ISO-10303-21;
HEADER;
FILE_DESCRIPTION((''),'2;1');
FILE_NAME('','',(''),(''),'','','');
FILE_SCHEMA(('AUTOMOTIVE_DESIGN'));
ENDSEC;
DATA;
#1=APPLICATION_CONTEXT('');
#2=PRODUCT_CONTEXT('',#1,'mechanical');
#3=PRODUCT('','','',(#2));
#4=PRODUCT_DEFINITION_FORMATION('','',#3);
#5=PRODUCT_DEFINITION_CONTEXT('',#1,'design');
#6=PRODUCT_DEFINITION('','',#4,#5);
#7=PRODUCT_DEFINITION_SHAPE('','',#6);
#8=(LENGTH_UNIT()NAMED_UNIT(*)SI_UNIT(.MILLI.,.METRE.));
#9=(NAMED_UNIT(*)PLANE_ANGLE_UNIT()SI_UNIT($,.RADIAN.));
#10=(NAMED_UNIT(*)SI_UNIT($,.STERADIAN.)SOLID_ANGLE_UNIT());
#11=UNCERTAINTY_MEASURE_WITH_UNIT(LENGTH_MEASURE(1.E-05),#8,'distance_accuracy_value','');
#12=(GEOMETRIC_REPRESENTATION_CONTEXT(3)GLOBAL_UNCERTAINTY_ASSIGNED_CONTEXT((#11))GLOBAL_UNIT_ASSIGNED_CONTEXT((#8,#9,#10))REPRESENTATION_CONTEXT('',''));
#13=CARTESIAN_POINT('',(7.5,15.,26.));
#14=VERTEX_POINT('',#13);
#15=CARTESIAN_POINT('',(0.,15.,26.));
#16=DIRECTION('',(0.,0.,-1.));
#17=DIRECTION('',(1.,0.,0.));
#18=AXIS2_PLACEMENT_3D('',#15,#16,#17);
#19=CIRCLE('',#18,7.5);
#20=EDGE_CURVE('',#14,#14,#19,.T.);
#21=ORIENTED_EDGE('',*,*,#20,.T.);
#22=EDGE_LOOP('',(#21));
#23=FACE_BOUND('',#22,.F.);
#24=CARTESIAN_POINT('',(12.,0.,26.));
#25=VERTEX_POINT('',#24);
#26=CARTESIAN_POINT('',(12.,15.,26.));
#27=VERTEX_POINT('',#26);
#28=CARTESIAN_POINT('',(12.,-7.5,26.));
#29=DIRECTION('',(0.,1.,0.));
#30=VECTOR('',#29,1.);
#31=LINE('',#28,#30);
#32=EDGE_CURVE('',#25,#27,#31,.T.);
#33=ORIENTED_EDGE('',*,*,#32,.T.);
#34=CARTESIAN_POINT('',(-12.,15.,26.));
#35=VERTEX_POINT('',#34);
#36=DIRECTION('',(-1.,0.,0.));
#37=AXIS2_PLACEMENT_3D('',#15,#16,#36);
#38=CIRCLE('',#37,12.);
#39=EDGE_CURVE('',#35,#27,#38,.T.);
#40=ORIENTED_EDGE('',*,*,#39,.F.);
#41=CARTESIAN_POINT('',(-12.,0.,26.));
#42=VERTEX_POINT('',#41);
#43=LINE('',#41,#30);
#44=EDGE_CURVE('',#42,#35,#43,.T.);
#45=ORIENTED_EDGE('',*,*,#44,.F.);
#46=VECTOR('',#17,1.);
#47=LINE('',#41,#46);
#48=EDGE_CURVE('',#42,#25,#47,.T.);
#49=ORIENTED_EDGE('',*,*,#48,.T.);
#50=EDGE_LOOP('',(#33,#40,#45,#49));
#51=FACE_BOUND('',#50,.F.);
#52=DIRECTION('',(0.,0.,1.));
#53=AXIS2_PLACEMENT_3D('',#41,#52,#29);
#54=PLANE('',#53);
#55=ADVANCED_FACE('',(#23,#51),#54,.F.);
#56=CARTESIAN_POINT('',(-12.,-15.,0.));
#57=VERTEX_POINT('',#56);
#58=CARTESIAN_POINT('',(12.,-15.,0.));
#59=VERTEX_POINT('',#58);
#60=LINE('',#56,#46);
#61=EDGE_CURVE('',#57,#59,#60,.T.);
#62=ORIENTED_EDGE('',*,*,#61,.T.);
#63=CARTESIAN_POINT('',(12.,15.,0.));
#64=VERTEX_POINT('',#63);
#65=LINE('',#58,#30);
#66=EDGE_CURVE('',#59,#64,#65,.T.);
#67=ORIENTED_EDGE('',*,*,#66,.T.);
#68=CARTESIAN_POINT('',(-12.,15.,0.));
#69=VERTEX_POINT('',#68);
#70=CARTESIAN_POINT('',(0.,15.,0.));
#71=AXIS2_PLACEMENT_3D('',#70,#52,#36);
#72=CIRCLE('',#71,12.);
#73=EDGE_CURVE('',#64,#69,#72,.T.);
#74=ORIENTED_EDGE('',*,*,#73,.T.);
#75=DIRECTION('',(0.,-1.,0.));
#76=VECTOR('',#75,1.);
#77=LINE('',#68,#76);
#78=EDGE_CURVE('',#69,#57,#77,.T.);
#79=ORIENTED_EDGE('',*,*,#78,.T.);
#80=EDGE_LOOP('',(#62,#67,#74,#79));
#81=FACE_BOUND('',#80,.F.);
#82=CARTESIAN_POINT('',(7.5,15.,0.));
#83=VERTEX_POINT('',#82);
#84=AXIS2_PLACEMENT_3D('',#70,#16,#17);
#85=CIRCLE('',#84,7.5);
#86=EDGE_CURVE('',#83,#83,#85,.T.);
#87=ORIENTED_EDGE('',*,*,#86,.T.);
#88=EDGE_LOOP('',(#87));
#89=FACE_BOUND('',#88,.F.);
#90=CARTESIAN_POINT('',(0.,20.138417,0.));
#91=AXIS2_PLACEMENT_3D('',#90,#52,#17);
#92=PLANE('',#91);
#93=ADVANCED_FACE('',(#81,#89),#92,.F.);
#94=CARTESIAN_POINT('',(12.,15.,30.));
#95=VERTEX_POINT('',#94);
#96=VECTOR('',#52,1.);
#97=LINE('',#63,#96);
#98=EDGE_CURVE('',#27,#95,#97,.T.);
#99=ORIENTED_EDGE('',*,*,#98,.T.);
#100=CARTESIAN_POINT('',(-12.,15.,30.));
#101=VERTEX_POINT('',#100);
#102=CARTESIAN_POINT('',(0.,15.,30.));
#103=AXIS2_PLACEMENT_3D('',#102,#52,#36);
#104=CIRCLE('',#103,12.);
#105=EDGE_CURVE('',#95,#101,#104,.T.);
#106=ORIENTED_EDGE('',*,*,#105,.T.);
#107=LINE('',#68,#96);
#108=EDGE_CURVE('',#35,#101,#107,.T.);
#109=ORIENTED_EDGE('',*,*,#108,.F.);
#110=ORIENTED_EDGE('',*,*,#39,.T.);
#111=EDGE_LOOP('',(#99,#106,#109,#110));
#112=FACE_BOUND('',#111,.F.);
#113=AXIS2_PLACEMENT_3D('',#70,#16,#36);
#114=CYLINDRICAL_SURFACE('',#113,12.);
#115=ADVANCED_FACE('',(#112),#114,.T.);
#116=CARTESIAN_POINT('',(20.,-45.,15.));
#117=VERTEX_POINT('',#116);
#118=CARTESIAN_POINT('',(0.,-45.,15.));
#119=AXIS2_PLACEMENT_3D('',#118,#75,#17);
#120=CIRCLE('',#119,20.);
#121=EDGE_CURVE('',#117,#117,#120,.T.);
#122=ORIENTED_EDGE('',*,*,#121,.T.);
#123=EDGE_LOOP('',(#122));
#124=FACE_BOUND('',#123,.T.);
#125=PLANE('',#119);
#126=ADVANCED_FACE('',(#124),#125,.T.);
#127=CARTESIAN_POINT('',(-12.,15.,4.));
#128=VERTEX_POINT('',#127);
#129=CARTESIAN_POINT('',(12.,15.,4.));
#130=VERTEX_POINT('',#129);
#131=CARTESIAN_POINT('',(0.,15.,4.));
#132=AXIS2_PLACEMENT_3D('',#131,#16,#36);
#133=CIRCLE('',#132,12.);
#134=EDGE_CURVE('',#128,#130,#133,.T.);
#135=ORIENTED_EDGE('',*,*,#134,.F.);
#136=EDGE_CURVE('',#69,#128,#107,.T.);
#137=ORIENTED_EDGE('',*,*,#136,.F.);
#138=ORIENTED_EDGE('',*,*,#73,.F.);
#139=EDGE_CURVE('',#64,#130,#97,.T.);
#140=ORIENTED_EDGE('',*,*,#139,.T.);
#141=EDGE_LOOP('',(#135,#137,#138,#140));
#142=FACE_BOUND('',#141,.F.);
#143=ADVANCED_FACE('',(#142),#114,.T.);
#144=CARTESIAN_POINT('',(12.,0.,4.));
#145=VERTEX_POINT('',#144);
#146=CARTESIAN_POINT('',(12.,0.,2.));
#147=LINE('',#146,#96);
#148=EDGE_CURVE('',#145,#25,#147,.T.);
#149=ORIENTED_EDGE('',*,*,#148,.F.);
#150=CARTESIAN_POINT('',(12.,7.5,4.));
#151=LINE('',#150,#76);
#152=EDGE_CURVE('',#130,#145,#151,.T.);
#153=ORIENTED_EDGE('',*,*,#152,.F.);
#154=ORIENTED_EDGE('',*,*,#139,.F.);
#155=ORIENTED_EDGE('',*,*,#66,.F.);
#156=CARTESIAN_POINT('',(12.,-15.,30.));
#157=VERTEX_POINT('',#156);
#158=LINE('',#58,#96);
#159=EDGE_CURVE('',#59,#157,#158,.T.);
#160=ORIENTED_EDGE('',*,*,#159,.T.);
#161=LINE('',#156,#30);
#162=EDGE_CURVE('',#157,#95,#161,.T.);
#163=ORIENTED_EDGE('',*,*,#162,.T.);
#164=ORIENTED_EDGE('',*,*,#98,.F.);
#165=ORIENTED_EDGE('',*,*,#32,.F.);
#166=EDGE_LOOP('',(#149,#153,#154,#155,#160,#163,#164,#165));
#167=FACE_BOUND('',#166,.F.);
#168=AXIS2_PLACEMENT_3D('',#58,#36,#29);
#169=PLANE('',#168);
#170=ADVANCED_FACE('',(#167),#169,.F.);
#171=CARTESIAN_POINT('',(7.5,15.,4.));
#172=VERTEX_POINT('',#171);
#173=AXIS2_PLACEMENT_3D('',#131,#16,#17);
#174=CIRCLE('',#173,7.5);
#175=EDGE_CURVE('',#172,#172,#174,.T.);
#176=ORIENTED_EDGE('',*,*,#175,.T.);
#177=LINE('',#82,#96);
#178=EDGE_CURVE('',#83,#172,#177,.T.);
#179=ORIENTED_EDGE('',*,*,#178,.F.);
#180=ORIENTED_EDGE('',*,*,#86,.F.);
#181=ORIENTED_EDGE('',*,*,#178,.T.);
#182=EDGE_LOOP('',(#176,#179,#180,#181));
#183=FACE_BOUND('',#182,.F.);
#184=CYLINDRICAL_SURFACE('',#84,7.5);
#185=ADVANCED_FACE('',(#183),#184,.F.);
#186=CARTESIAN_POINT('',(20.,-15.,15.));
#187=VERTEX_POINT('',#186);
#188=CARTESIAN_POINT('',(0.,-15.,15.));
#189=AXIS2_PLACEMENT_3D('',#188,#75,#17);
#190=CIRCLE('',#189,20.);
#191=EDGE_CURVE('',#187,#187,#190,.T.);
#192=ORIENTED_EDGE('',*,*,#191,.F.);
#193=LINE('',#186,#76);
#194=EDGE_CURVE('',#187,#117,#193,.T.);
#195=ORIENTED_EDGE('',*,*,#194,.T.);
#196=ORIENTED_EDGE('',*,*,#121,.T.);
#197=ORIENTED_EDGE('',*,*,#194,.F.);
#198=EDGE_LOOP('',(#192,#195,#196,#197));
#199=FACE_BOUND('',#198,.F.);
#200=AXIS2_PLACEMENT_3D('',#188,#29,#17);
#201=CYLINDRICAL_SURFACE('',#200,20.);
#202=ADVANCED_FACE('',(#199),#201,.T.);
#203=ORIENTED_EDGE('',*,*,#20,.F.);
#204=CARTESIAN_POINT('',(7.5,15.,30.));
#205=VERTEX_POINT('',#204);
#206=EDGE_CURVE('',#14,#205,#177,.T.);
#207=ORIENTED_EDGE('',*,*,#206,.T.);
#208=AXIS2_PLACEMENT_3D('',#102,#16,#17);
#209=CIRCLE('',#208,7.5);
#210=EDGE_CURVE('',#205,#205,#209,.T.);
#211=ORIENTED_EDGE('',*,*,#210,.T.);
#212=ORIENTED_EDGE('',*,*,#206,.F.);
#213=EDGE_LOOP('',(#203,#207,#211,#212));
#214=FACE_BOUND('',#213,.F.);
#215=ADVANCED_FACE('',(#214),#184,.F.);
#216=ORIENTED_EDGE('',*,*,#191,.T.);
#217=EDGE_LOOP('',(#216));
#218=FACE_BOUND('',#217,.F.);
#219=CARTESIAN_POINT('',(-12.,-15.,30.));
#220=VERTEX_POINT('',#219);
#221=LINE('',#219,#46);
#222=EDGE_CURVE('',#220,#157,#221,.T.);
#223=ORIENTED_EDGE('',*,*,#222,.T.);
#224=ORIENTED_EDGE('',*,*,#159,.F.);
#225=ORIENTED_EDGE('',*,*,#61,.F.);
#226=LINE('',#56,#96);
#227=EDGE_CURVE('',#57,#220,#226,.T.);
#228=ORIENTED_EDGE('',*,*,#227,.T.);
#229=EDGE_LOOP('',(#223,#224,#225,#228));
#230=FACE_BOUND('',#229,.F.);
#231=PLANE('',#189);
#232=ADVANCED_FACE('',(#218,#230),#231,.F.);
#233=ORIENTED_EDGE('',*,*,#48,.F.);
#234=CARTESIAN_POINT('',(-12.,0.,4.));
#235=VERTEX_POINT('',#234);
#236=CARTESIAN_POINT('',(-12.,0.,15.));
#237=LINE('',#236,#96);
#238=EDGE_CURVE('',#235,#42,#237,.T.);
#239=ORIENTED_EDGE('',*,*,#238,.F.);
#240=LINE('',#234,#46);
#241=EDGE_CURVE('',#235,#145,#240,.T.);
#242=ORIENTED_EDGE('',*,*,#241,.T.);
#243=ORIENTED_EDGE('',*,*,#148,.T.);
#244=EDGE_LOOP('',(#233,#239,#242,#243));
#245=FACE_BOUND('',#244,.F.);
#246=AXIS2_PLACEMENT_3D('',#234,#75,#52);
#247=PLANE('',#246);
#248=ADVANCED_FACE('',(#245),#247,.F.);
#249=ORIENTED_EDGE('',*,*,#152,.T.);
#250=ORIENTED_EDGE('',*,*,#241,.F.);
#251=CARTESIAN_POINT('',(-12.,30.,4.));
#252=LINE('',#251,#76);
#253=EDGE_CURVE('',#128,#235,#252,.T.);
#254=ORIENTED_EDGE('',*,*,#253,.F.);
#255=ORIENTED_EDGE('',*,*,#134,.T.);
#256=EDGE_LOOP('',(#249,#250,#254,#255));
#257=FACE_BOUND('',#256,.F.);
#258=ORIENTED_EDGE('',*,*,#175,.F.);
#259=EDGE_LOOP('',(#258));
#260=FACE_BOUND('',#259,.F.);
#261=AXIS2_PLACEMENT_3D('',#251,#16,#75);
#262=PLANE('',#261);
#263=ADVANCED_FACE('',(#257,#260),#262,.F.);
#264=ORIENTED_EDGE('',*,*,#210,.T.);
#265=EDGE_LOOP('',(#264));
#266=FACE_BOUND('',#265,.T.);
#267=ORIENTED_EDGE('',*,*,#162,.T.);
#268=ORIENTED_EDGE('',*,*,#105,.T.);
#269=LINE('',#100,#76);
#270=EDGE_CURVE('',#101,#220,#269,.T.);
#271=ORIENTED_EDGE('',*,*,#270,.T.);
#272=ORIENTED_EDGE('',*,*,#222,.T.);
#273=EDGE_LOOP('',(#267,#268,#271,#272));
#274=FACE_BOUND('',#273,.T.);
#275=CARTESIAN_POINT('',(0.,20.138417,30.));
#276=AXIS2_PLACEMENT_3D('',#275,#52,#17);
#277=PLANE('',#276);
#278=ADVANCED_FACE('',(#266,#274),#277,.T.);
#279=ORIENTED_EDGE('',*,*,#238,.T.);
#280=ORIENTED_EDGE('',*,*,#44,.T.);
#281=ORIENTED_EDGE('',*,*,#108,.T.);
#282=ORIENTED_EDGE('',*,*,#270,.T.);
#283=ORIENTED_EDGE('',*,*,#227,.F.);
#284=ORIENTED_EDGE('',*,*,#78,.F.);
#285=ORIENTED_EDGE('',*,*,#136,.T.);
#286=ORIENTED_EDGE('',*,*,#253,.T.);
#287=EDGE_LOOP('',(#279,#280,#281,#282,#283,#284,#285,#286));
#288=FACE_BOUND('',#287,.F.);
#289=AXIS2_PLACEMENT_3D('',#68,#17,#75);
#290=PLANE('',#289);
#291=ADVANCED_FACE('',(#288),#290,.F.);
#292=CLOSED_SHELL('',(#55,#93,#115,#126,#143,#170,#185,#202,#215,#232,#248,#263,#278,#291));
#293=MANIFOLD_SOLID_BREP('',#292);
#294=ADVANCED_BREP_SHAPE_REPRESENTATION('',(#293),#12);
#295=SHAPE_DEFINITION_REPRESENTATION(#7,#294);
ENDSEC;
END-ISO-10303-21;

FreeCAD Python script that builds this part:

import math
import FreeCAD as App
import Part
import Sketcher

V = App.Vector
Q = App.Units.Quantity


def add_polygon(sketch, points):
    """Adds a closed chain of lines whose ends are joined by coincident constraints."""
    first, n = sketch.GeometryCount, len(points)
    for a, b in zip(points, points[1:] + points[:1]):
        sketch.addGeometry(Part.LineSegment(App.Vector(*a, 0), App.Vector(*b, 0)), False)
    for i in range(n):
        sketch.addConstraint(Sketcher.Constraint("Coincident", first + i, 2, first + (i + 1) % n, 1))

doc = App.newDocument("Part")
body = doc.addObject("PartDesign::Body", "Body")

sketch1 = body.newObject("Sketcher::SketchObject", "Sketch")
sketch1.AttachmentSupport = (doc.getObject("XY_Plane"), [""])
sketch1.MapMode = "FlatFace"
sketch1.addGeometry(Part.ArcOfCircle(Part.Circle(V(0, 15, 0), V(0, 0, 1), 12), math.radians(0), math.radians(180)), False)
sketch1.addGeometry(Part.LineSegment(V(-12, 15, 0), V(-12, -15, 0)), False)
sketch1.addGeometry(Part.LineSegment(V(-12, -15, 0), V(12, -15, 0)), False)
sketch1.addGeometry(Part.LineSegment(V(12, -15, 0), V(12, 15, 0)), False)
sketch1.addGeometry(Part.Circle(V(0, 15, 0), V(0, 0, 1), 7.5), False)
sketch1.addConstraint(Sketcher.Constraint("Tangent", 0, 2, 1, 1))
sketch1.addConstraint(Sketcher.Constraint("Coincident", 1, 2, 2, 1))
sketch1.addConstraint(Sketcher.Constraint("Coincident", 2, 2, 3, 1))
sketch1.addConstraint(Sketcher.Constraint("Tangent", 3, 2, 0, 1))
sketch1.addConstraint(Sketcher.Constraint("Vertical", 1))
sketch1.addConstraint(Sketcher.Constraint("Horizontal", 2))
sketch1.addConstraint(Sketcher.Constraint("Vertical", 3))
sketch1.addConstraint(Sketcher.Constraint("Coincident", 4, 3, 0, 3))
sketch1.addConstraint(Sketcher.Constraint("Symmetric", 0, 2, 2, 2, -1, 1))
sketch1.addConstraint(Sketcher.Constraint("Diameter", 4, Q("15 mm")))
sketch1.addConstraint(Sketcher.Constraint("Radius", 0, Q("12 mm")))
sketch1.addConstraint(Sketcher.Constraint("DistanceY", 1, 2, 1, 1, Q("30 mm")))
pad1 = body.newObject("PartDesign::Pad", "Pad")
pad1.Profile = sketch1
pad1.Length = 30

sketch2 = body.newObject("Sketcher::SketchObject", "Sketch001")
sketch2.AttachmentSupport = (doc.getObject("XZ_Plane"), [""])
sketch2.MapMode = "FlatFace"
sketch2.AttachmentOffset = App.Placement(V(0, 0, 15), App.Rotation())
sketch2.addGeometry(Part.Circle(V(0, 15, 0), V(0, 0, 1), 20), False)
sketch2.addConstraint(Sketcher.Constraint("PointOnObject", 0, 3, -2))
sketch2.addConstraint(Sketcher.Constraint("Diameter", 0, Q("40 mm")))
sketch2.addConstraint(Sketcher.Constraint("DistanceY", -1, 1, 0, 3, Q("15 mm")))
pad2 = body.newObject("PartDesign::Pad", "Pad001")
pad2.Profile = sketch2
pad2.Length = 30

sketch3 = body.newObject("Sketcher::SketchObject", "Sketch002")
sketch3.AttachmentSupport = (doc.getObject("YZ_Plane"), [""])
sketch3.MapMode = "FlatFace"
sketch3.AttachmentOffset = App.Placement(V(0, 0, -12), App.Rotation())
add_polygon(sketch3, [(30, 26), (30, 4), (0, 4), (0, 26)])
sketch3.addConstraint(Sketcher.Constraint("Vertical", 0))
sketch3.addConstraint(Sketcher.Constraint("Horizontal", 1))
sketch3.addConstraint(Sketcher.Constraint("Vertical", 2))
sketch3.addConstraint(Sketcher.Constraint("Horizontal", 3))
sketch3.addConstraint(Sketcher.Constraint("PointOnObject", 1, 2, -2))
sketch3.addConstraint(Sketcher.Constraint("DistanceX", 1, 2, 1, 1, Q("30 mm")))
sketch3.addConstraint(Sketcher.Constraint("DistanceY", 0, 2, 0, 1, Q("22 mm")))
sketch3.addConstraint(Sketcher.Constraint("DistanceY", -1, 1, 0, 2, Q("4 mm")))
pocket1 = body.newObject("PartDesign::Pocket", "Pocket")
pocket1.Profile = sketch3
pocket1.Length = 25.4
pocket1.Reversed = True

doc.recompute()
